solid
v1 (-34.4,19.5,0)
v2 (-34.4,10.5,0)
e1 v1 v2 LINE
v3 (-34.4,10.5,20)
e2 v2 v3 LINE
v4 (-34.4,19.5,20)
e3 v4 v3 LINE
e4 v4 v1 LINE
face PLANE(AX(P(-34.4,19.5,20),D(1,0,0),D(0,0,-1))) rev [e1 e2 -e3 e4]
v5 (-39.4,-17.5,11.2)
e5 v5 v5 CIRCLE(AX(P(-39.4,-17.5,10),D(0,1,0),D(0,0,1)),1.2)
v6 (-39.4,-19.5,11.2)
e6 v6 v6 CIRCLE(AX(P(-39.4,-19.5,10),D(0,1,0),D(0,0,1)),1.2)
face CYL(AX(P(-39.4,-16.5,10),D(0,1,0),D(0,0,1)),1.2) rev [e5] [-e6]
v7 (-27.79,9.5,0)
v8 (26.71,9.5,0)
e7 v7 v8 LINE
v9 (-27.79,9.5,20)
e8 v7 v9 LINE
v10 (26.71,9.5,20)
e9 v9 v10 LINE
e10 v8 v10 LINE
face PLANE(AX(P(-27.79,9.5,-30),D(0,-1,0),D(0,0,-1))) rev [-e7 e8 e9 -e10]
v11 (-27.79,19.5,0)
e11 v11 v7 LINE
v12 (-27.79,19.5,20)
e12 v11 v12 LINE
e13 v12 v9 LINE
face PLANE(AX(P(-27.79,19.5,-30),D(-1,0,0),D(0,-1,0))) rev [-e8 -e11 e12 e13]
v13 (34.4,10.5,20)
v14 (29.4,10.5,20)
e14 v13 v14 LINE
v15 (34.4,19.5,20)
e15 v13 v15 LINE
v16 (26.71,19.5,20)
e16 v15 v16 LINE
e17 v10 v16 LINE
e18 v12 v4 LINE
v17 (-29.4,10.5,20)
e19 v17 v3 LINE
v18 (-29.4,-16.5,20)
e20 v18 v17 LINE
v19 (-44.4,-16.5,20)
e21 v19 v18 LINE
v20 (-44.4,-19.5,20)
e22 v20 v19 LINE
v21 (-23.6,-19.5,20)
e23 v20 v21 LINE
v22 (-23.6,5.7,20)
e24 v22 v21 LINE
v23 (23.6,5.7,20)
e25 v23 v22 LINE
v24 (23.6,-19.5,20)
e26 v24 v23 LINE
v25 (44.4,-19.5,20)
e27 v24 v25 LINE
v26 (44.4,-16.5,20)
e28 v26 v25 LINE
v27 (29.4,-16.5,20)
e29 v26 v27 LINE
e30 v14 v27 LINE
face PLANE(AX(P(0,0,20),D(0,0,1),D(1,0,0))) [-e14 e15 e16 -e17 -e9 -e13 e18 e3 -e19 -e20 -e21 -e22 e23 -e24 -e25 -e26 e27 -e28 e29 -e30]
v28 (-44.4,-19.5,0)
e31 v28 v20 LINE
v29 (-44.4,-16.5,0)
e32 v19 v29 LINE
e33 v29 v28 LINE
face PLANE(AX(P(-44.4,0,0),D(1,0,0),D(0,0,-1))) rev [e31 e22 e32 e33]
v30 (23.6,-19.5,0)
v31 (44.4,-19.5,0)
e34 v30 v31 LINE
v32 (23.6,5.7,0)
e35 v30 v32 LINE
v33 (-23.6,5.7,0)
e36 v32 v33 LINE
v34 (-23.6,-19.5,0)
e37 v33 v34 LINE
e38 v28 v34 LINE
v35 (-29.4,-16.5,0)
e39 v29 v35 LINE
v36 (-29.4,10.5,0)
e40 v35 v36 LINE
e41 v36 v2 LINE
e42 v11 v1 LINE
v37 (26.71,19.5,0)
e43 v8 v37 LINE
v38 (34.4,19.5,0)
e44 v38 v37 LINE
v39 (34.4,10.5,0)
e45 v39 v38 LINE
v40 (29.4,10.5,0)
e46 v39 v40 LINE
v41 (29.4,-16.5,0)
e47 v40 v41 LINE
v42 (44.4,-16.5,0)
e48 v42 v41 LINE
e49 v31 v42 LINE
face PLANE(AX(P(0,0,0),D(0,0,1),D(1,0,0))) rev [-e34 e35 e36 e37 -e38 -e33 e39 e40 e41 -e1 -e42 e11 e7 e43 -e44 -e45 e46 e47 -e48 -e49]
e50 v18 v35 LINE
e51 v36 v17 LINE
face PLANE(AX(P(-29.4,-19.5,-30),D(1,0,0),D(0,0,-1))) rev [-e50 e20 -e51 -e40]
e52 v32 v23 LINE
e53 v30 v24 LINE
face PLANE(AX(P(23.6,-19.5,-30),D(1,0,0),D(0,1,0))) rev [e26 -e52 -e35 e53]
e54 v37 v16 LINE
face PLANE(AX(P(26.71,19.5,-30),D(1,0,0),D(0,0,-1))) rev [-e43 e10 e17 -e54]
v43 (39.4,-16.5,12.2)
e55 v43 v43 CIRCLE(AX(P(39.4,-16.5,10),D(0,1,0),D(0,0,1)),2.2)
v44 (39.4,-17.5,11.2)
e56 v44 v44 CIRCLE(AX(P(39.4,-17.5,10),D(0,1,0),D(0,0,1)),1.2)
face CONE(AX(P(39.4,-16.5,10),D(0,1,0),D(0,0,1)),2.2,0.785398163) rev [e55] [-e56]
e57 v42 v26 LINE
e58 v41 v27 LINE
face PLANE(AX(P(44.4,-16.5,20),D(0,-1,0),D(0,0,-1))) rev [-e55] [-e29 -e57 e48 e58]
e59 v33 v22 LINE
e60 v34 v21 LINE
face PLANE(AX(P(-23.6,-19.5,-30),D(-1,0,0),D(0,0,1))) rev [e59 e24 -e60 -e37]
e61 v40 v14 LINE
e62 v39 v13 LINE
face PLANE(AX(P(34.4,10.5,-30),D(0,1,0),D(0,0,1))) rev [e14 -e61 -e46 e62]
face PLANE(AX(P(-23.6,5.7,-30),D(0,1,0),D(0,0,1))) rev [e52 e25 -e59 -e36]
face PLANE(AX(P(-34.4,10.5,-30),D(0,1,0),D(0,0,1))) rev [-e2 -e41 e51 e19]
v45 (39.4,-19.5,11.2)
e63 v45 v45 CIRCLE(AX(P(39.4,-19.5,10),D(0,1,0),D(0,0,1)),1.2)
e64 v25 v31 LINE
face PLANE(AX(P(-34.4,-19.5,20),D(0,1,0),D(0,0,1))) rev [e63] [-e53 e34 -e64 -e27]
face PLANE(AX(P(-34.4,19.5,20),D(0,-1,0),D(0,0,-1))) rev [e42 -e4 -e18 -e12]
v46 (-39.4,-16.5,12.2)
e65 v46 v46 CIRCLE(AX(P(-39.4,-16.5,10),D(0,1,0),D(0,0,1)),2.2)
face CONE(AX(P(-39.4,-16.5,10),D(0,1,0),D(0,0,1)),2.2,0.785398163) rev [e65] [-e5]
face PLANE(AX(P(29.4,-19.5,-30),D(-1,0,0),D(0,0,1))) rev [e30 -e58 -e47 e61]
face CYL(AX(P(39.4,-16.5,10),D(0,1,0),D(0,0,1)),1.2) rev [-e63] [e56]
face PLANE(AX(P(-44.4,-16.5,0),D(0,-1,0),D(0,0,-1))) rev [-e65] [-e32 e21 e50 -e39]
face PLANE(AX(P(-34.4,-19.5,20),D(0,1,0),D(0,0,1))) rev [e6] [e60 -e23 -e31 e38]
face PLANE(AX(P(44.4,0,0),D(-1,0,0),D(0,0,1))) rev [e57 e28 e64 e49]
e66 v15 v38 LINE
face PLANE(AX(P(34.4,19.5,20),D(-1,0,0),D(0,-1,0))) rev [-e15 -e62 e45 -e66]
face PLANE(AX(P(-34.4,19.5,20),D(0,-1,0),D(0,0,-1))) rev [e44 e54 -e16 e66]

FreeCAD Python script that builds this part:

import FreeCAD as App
import Part
import Sketcher

V = App.Vector
Q = App.Units.Quantity


def add_polygon(sketch, points):
    """Adds a closed chain of lines whose ends are joined by coincident constraints."""
    first, n = sketch.GeometryCount, len(points)
    for a, b in zip(points, points[1:] + points[:1]):
        sketch.addGeometry(Part.LineSegment(App.Vector(*a, 0), App.Vector(*b, 0)), False)
    for i in range(n):
        sketch.addConstraint(Sketcher.Constraint("Coincident", first + i, 2, first + (i + 1) % n, 1))

doc = App.newDocument("Part")
params = doc.addObject("Spreadsheet::Sheet", "Params")
for row, (alias, value) in enumerate([
    ("sketch1_height", "39 mm"),
    ("sketch1_width", "68.8 mm"),
    ("pad1_length", "20 mm"),
    ("sketch2_height", "10 mm"),
    ("sketch2_width", "47.2 mm"),
    ("sketch2_width2", "54.5 mm"),
    ("sketch2_height2", "25.2 mm"),
    ("pocket1_length", "50 mm"),
    ("sketch3_width", "5 mm"),
    ("sketch3_height", "30 mm"),
    ("pocket2_length", "50 mm"),
    ("sketch4_width", "3 mm"),
    ("sketch4_height", "20 mm"),
    ("pad2_length", "15 mm"),
    ("sketch5_width", "3 mm"),
    ("sketch5_height", "20 mm"),
    ("pad3_length", "15 mm"),
    ("sketch6_diameter", "2.4 mm"),
    ("hole_diameter", "2.4 mm"),
    ("hole_csink_diameter", "4.4 mm"),
    ("sketch7_diameter", "2.4 mm"),
    ("hole2_diameter", "2.4 mm"),
    ("hole2_csink_diameter", "4.4 mm"),
], start=1):
    params.set(f"A{row}", alias)
    params.set(f"B{row}", "=" + value)
    params.setAlias(f"B{row}", alias)

body = doc.addObject("PartDesign::Body", "Body")

sketch1 = body.newObject("Sketcher::SketchObject", "Sketch")
sketch1.AttachmentSupport = (doc.getObject("XY_Plane"), [""])
sketch1.MapMode = "FlatFace"
add_polygon(sketch1, [(-34, 20), (-34, -20), (34, -20), (34, 20)])
sketch1.addConstraint([
    Sketcher.Constraint("Vertical", 0),
    Sketcher.Constraint("Horizontal", 1),
    Sketcher.Constraint("Vertical", 2),
    Sketcher.Constraint("Horizontal", 3),
    Sketcher.Constraint("Symmetric", 0, 2, 2, 2, -1, 1),
    Sketcher.Constraint("DistanceY", 0, 2, 0, 1, Q("39 mm")),
    Sketcher.Constraint("DistanceX", 1, 1, 1, 2, Q("68.8 mm")),
])
sketch1.setExpression("Constraints[9]", "Params.sketch1_height")
sketch1.setExpression("Constraints[10]", "Params.sketch1_width")
pad1 = body.newObject("PartDesign::Pad", "Pad")
pad1.Profile = sketch1
pad1.setExpression("Length", "Params.pad1_length")

sketch2 = body.newObject("Sketcher::SketchObject", "Sketch001")
sketch2.AttachmentSupport = (doc.getObject("XY_Plane"), [""])
sketch2.MapMode = "FlatFace"
sketch2.AttachmentOffset = App.Placement(V(0, 0, 20), App.Rotation())
add_polygon(sketch2, [(-24, 6), (-24, -20), (24, -20), (24, 6)])
add_polygon(sketch2, [(-28, 20), (-28, 10), (27, 10), (27, 20)])
sketch2.addConstraint([
    Sketcher.Constraint("Vertical", 0),
    Sketcher.Constraint("Horizontal", 1),
    Sketcher.Constraint("Vertical", 2),
    Sketcher.Constraint("Horizontal", 3),
    Sketcher.Constraint("Vertical", 4),
    Sketcher.Constraint("Horizontal", 5),
    Sketcher.Constraint("Vertical", 6),
    Sketcher.Constraint("Horizontal", 7),
    Sketcher.Constraint("DistanceY", 4, 2, 4, 1, Q("10 mm")),
    Sketcher.Constraint("DistanceX", 1, 1, 1, 2, Q("47.2 mm")),
    Sketcher.Constraint("DistanceX", 5, 1, 5, 2, Q("54.5 mm")),
    Sketcher.Constraint("DistanceY", 0, 2, 0, 1, Q("25.2 mm")),
    Sketcher.Constraint("DistanceY", 0, 2, 4, 2, Q("29 mm")),
    Sketcher.Constraint("DistanceX", 0, 2, -1, 1, Q("23.6 mm")),
    Sketcher.Constraint("DistanceY", 0, 2, -1, 1, Q("19.5 mm")),
    Sketcher.Constraint("DistanceX", 4, 2, -1, 1, Q("27.79 mm")),
])
sketch2.setExpression("Constraints[16]", "Params.sketch2_height")
sketch2.setExpression("Constraints[17]", "Params.sketch2_width")
sketch2.setExpression("Constraints[18]", "Params.sketch2_width2")
sketch2.setExpression("Constraints[19]", "Params.sketch2_height2")
pocket1 = body.newObject("PartDesign::Pocket", "Pocket")
pocket1.Profile = sketch2
pocket1.setExpression("Length", "Params.pocket1_length")

sketch3 = body.newObject("Sketcher::SketchObject", "Sketch002")
sketch3.AttachmentSupport = (doc.getObject("XY_Plane"), [""])
sketch3.MapMode = "FlatFace"
sketch3.AttachmentOffset = App.Placement(V(0, 0, 20), App.Rotation())
add_polygon(sketch3, [(-34, 10), (-34, -20), (-29, -20), (-29, 10)])
add_polygon(sketch3, [(29, 10), (29, -20), (34, -20), (34, 10)])
sketch3.addConstraint([
    Sketcher.Constraint("Vertical", 0),
    Sketcher.Constraint("Horizontal", 1),
    Sketcher.Constraint("Vertical", 2),
    Sketcher.Constraint("Horizontal", 3),
    Sketcher.Constraint("Vertical", 4),
    Sketcher.Constraint("Horizontal", 5),
    Sketcher.Constraint("Vertical", 6),
    Sketcher.Constraint("Horizontal", 7),
    Sketcher.Constraint("Symmetric", 1, 2, 4, 2, -2),
    Sketcher.Constraint("Symmetric", 3, 2, 6, 2, -2),
    Sketcher.Constraint("DistanceX", 1, 1, 1, 2, Q("5 mm")),
    Sketcher.Constraint("DistanceY", 0, 2, 0, 1, Q("30 mm")),
    Sketcher.Constraint("DistanceX", 0, 2, -1, 1, Q("34.4 mm")),
    Sketcher.Constraint("DistanceY", 0, 2, -1, 1, Q("19.5 mm")),
])
sketch3.setExpression("Constraints[18]", "Params.sketch3_width")
sketch3.setExpression("Constraints[19]", "Params.sketch3_height")
pocket2 = body.newObject("PartDesign::Pocket", "Pocket001")
pocket2.Profile = sketch3
pocket2.setExpression("Length", "Params.pocket2_length")

sketch4 = body.newObject("Sketcher::SketchObject", "Sketch003")
sketch4.AttachmentSupport = (doc.getObject("YZ_Plane"), [""])
sketch4.MapMode = "FlatFace"
sketch4.AttachmentOffset = App.Placement(V(0, 0, -29.4), App.Rotation())
add_polygon(sketch4, [(-16.5, 0), (-19.5, 0), (-19.5, 20), (-16.5, 20)])
sketch4.addConstraint([
    Sketcher.Constraint("Horizontal", 0),
    Sketcher.Constraint("Vertical", 1),
    Sketcher.Constraint("Horizontal", 2),
    Sketcher.Constraint("Vertical", 3),
    Sketcher.Constraint("PointOnObject", 0, 2, -1),
    Sketcher.Constraint("DistanceX", 0, 2, 0, 1, Q("3 mm")),
    Sketcher.Constraint("DistanceY", 1, 1, 1, 2, Q("20 mm")),
    Sketcher.Constraint("DistanceX", 0, 2, -1, 1, Q("19.5 mm")),
])
sketch4.setExpression("Constraints[9]", "Params.sketch4_width")
sketch4.setExpression("Constraints[10]", "Params.sketch4_height")
pad2 = body.newObject("PartDesign::Pad", "Pad001")
pad2.Profile = sketch4
pad2.setExpression("Length", "Params.pad2_length")
pad2.Reversed = True

sketch5 = body.newObject("Sketcher::SketchObject", "Sketch004")
sketch5.AttachmentSupport = (doc.getObject("YZ_Plane"), [""])
sketch5.MapMode = "FlatFace"
sketch5.AttachmentOffset = App.Placement(V(0, 0, 29.4), App.Rotation())
add_polygon(sketch5, [(-16.5, 20), (-19.5, 20), (-19.5, 0), (-16.5, 0)])
sketch5.addConstraint([
    Sketcher.Constraint("Horizontal", 0),
    Sketcher.Constraint("Vertical", 1),
    Sketcher.Constraint("Horizontal", 2),
    Sketcher.Constraint("Vertical", 3),
    Sketcher.Constraint("PointOnObject", 1, 2, -1),
    Sketcher.Constraint("DistanceX", 0, 2, 0, 1, Q("3 mm")),
    Sketcher.Constraint("DistanceY", 1, 2, 1, 1, Q("20 mm")),
    Sketcher.Constraint("DistanceX", 0, 2, -1, 1, Q("19.5 mm")),
])
sketch5.setExpression("Constraints[9]", "Params.sketch5_width")
sketch5.setExpression("Constraints[10]", "Params.sketch5_height")
pad3 = body.newObject("PartDesign::Pad", "Pad002")
pad3.Profile = sketch5
pad3.setExpression("Length", "Params.pad3_length")

sketch6 = body.newObject("Sketcher::SketchObject", "Sketch005")
sketch6.AttachmentSupport = (doc.getObject("XZ_Plane"), [""])
sketch6.MapMode = "FlatFace"
sketch6.AttachmentOffset = App.Placement(V(0, 0, 16.5), App.Rotation())
sketch6.addGeometry(Part.Circle(V(-39.4, 10, 0), V(0, 0, 1), 1.2), False)
sketch6.addConstraint([
    Sketcher.Constraint("Diameter", 0, Q("2.4 mm")),
    Sketcher.Constraint("DistanceY", -1, 1, 0, 3, Q("10 mm")),
    Sketcher.Constraint("DistanceX", 0, 3, -1, 1, Q("39.4 mm")),
])
sketch6.setExpression("Constraints[0]", "Params.sketch6_diameter")
doc.recompute()
hole = body.newObject("PartDesign::Hole", "Hole")
hole.Profile = sketch6
hole.ThreadType = "None"
hole.setExpression("Diameter", "Params.hole_diameter")
hole.DepthType = "ThroughAll"
hole.HoleCutType = "Countersink"
hole.setExpression("HoleCutDiameter", "Params.hole_csink_diameter")
hole.HoleCutCountersinkAngle = 90
hole.Reversed = True

sketch7 = body.newObject("Sketcher::SketchObject", "Sketch006")
sketch7.AttachmentSupport = (doc.getObject("XZ_Plane"), [""])
sketch7.MapMode = "FlatFace"
sketch7.AttachmentOffset = App.Placement(V(0, 0, 16.5), App.Rotation())
sketch7.addGeometry(Part.Circle(V(39.4, 10, 0), V(0, 0, 1), 1.2), False)
sketch7.addConstraint([
    Sketcher.Constraint("Diameter", 0, Q("2.4 mm")),
    Sketcher.Constraint("DistanceY", -1, 1, 0, 3, Q("10 mm")),
    Sketcher.Constraint("DistanceX", -1, 1, 0, 3, Q("39.4 mm")),
])
sketch7.setExpression("Constraints[0]", "Params.sketch7_diameter")
doc.recompute()
hole2 = body.newObject("PartDesign::Hole", "Hole001")
hole2.Profile = sketch7
hole2.ThreadType = "None"
hole2.setExpression("Diameter", "Params.hole2_diameter")
hole2.DepthType = "ThroughAll"
hole2.HoleCutType = "Countersink"
hole2.setExpression("HoleCutDiameter", "Params.hole2_csink_diameter")
hole2.HoleCutCountersinkAngle = 90
hole2.Reversed = True

doc.recompute()
